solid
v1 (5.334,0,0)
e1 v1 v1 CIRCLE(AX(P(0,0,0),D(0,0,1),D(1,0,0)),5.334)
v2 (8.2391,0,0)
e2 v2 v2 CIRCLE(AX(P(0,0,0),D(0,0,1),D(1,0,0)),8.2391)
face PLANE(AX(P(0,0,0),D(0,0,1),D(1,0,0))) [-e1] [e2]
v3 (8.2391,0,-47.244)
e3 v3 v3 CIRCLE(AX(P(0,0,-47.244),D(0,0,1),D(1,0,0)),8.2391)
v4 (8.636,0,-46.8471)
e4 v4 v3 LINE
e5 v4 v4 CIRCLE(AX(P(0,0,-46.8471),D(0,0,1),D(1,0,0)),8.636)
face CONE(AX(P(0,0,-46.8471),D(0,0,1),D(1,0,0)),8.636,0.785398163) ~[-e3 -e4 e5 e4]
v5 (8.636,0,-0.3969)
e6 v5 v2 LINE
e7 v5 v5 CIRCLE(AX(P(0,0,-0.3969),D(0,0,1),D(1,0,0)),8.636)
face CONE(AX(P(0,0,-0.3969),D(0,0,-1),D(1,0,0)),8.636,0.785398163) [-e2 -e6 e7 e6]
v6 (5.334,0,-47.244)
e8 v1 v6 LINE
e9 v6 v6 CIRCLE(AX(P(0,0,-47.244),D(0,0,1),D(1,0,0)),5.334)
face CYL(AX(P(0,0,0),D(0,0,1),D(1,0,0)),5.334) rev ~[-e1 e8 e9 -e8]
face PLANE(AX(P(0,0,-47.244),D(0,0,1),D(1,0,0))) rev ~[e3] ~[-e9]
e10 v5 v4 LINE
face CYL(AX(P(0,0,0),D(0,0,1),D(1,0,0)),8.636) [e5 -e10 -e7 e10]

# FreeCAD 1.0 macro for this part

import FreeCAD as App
import Part
import Sketcher

V = App.Vector
Q = App.Units.Quantity


def edges_at(feature, points):
    """Names of the edges that pass closest to the given points."""
    edges = feature.Shape.Edges
    near = lambda p: min(range(len(edges)), key=lambda i: edges[i].distToShape(Part.Vertex(*p))[0])
    return sorted({f"Edge{near(p) + 1}" for p in points})

doc = App.newDocument("Part")
body = doc.addObject("PartDesign::Body", "Body")

# Sketch on XY plane
sketch1 = body.newObject("Sketcher::SketchObject", "Sketch")
sketch1.AttachmentSupport = (doc.getObject("XY_Plane"), [""])
sketch1.MapMode = "FlatFace"
sketch1.addGeometry(Part.Circle(V(0, 0, 0), V(0, 0, 1), 9), False)
sketch1.addGeometry(Part.Circle(V(0, 0, 0), V(0, 0, 1), 5), False)
sketch1.addConstraint(Sketcher.Constraint("Coincident", 0, 3, -1, 1))
sketch1.addConstraint(Sketcher.Constraint("Coincident", 1, 3, -1, 1))
sketch1.addConstraint(Sketcher.Constraint("Diameter", 0, Q("0.68 in")))
sketch1.addConstraint(Sketcher.Constraint("Diameter", 1, Q("0.42 in")))
pad1 = body.newObject("PartDesign::Pad", "Pad")
pad1.Profile = sketch1
pad1.Length = Q("1.86 in")
pad1.Reversed = True
doc.recompute()

chamfer = body.newObject("PartDesign::Chamfer", "Chamfer")
chamfer.Base = (pad1, edges_at(pad1, [(-8.636, 0, 0), (-8.636, 0, -47.244)]))
chamfer.Size = Q("0.015626 in")

doc.recompute()
